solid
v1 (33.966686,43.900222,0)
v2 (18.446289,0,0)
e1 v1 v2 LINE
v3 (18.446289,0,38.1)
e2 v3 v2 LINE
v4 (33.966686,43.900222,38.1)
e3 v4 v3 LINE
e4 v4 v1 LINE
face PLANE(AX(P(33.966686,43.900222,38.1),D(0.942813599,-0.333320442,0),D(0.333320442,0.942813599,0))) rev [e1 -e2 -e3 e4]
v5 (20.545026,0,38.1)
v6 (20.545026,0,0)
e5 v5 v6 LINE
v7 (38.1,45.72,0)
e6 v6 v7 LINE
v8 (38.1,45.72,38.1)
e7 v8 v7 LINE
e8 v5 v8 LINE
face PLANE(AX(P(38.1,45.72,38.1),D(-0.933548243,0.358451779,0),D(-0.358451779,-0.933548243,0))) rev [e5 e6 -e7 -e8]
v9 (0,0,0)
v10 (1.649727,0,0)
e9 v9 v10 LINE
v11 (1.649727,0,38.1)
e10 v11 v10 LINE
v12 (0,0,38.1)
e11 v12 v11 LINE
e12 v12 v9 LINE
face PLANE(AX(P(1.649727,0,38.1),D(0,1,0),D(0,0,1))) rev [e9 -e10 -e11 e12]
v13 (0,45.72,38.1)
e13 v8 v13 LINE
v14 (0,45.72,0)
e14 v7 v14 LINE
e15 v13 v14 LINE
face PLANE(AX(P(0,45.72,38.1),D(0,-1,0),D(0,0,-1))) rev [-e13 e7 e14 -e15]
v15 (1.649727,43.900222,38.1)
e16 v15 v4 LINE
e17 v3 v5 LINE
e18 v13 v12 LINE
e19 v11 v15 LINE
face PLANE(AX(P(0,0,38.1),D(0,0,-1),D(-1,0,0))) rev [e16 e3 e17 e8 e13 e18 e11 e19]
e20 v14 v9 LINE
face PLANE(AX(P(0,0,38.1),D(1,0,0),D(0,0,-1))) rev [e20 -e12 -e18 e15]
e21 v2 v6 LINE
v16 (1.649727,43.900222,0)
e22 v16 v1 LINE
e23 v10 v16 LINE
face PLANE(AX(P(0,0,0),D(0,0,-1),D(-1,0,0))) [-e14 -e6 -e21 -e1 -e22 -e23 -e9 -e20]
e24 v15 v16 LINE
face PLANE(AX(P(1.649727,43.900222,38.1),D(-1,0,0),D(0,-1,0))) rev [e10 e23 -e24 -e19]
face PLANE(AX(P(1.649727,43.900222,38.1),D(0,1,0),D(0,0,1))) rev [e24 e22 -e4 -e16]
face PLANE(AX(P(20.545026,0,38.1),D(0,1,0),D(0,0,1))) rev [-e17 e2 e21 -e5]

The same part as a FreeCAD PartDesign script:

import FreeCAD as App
import Part
import Sketcher
Q = App.Units.Quantity

doc = App.newDocument("Part")
body = doc.addObject("PartDesign::Body", "Body")

# Sketch on XY plane
sketch1 = body.newObject("Sketcher::SketchObject", "Sketch")
sketch1.AttachmentSupport = (doc.getObject("XY_Plane"), [""])
sketch1.MapMode = "FlatFace"
sketch1.addGeometry([
    Part.LineSegment(App.Vector(0, 45.72, 0), App.Vector(0, 0, 0)),  # 0
    Part.LineSegment(App.Vector(0, 0, 0), App.Vector(1.649727, 0, 0)),  # 1
    Part.LineSegment(App.Vector(1.649727, 0, 0), App.Vector(1.649727, 43.900222, 0)),  # 2
    Part.LineSegment(App.Vector(1.649727, 43.900222, 0), App.Vector(33.966686, 43.900222, 0)),  # 3
    Part.LineSegment(App.Vector(33.966686, 43.900222, 0), App.Vector(18.446289, 0, 0)),  # 4
    Part.LineSegment(App.Vector(18.446289, 0, 0), App.Vector(20.545026, 0, 0)),  # 5
    Part.LineSegment(App.Vector(20.545026, 0, 0), App.Vector(38.1, 45.72, 0)),  # 6
    Part.LineSegment(App.Vector(38.1, 45.72, 0), App.Vector(0, 45.72, 0)),  # 7
], False)
sketch1.addConstraint([
    Sketcher.Constraint("Coincident", 0, 2, 1, 1),
    Sketcher.Constraint("Coincident", 1, 2, 2, 1),
    Sketcher.Constraint("Coincident", 2, 2, 3, 1),
    Sketcher.Constraint("Coincident", 3, 2, 4, 1),
    Sketcher.Constraint("Coincident", 4, 2, 5, 1),
    Sketcher.Constraint("Coincident", 5, 2, 6, 1),
    Sketcher.Constraint("Coincident", 6, 2, 7, 1),
    Sketcher.Constraint("Coincident", 7, 2, 0, 1),
    Sketcher.Constraint("Vertical", 0),
    Sketcher.Constraint("Horizontal", 1),
    Sketcher.Constraint("Vertical", 2),
    Sketcher.Constraint("Horizontal", 3),
    Sketcher.Constraint("Horizontal", 5),
    Sketcher.Constraint("Horizontal", 7),
    Sketcher.Constraint("Coincident", 0, 2, -1, 1),
    Sketcher.Constraint("PointOnObject", 4, 2, -1),
    Sketcher.Constraint("DistanceX", 7, 2, 7, 1, Q("1.5 in")),
    Sketcher.Constraint("DistanceY", 0, 2, 0, 1, Q("1.8 in")),
    Sketcher.Constraint("DistanceX", 3, 1, 3, 2, Q("32.316959 mm")),
    Sketcher.Constraint("DistanceX", 1, 2, 5, 2, Q("18.895299 mm")),
    Sketcher.Constraint("DistanceX", 1, 1, 1, 2, Q("1.649727 mm")),
    Sketcher.Constraint("DistanceX", 5, 1, 5, 2, Q("2.098737 mm")),
    Sketcher.Constraint("DistanceY", 2, 1, 2, 2, Q("43.900222 mm")),
])
pad1 = body.newObject("PartDesign::Pad", "Pad")
pad1.Profile = sketch1
pad1.Length = Q("1.5 in")

doc.recompute()
